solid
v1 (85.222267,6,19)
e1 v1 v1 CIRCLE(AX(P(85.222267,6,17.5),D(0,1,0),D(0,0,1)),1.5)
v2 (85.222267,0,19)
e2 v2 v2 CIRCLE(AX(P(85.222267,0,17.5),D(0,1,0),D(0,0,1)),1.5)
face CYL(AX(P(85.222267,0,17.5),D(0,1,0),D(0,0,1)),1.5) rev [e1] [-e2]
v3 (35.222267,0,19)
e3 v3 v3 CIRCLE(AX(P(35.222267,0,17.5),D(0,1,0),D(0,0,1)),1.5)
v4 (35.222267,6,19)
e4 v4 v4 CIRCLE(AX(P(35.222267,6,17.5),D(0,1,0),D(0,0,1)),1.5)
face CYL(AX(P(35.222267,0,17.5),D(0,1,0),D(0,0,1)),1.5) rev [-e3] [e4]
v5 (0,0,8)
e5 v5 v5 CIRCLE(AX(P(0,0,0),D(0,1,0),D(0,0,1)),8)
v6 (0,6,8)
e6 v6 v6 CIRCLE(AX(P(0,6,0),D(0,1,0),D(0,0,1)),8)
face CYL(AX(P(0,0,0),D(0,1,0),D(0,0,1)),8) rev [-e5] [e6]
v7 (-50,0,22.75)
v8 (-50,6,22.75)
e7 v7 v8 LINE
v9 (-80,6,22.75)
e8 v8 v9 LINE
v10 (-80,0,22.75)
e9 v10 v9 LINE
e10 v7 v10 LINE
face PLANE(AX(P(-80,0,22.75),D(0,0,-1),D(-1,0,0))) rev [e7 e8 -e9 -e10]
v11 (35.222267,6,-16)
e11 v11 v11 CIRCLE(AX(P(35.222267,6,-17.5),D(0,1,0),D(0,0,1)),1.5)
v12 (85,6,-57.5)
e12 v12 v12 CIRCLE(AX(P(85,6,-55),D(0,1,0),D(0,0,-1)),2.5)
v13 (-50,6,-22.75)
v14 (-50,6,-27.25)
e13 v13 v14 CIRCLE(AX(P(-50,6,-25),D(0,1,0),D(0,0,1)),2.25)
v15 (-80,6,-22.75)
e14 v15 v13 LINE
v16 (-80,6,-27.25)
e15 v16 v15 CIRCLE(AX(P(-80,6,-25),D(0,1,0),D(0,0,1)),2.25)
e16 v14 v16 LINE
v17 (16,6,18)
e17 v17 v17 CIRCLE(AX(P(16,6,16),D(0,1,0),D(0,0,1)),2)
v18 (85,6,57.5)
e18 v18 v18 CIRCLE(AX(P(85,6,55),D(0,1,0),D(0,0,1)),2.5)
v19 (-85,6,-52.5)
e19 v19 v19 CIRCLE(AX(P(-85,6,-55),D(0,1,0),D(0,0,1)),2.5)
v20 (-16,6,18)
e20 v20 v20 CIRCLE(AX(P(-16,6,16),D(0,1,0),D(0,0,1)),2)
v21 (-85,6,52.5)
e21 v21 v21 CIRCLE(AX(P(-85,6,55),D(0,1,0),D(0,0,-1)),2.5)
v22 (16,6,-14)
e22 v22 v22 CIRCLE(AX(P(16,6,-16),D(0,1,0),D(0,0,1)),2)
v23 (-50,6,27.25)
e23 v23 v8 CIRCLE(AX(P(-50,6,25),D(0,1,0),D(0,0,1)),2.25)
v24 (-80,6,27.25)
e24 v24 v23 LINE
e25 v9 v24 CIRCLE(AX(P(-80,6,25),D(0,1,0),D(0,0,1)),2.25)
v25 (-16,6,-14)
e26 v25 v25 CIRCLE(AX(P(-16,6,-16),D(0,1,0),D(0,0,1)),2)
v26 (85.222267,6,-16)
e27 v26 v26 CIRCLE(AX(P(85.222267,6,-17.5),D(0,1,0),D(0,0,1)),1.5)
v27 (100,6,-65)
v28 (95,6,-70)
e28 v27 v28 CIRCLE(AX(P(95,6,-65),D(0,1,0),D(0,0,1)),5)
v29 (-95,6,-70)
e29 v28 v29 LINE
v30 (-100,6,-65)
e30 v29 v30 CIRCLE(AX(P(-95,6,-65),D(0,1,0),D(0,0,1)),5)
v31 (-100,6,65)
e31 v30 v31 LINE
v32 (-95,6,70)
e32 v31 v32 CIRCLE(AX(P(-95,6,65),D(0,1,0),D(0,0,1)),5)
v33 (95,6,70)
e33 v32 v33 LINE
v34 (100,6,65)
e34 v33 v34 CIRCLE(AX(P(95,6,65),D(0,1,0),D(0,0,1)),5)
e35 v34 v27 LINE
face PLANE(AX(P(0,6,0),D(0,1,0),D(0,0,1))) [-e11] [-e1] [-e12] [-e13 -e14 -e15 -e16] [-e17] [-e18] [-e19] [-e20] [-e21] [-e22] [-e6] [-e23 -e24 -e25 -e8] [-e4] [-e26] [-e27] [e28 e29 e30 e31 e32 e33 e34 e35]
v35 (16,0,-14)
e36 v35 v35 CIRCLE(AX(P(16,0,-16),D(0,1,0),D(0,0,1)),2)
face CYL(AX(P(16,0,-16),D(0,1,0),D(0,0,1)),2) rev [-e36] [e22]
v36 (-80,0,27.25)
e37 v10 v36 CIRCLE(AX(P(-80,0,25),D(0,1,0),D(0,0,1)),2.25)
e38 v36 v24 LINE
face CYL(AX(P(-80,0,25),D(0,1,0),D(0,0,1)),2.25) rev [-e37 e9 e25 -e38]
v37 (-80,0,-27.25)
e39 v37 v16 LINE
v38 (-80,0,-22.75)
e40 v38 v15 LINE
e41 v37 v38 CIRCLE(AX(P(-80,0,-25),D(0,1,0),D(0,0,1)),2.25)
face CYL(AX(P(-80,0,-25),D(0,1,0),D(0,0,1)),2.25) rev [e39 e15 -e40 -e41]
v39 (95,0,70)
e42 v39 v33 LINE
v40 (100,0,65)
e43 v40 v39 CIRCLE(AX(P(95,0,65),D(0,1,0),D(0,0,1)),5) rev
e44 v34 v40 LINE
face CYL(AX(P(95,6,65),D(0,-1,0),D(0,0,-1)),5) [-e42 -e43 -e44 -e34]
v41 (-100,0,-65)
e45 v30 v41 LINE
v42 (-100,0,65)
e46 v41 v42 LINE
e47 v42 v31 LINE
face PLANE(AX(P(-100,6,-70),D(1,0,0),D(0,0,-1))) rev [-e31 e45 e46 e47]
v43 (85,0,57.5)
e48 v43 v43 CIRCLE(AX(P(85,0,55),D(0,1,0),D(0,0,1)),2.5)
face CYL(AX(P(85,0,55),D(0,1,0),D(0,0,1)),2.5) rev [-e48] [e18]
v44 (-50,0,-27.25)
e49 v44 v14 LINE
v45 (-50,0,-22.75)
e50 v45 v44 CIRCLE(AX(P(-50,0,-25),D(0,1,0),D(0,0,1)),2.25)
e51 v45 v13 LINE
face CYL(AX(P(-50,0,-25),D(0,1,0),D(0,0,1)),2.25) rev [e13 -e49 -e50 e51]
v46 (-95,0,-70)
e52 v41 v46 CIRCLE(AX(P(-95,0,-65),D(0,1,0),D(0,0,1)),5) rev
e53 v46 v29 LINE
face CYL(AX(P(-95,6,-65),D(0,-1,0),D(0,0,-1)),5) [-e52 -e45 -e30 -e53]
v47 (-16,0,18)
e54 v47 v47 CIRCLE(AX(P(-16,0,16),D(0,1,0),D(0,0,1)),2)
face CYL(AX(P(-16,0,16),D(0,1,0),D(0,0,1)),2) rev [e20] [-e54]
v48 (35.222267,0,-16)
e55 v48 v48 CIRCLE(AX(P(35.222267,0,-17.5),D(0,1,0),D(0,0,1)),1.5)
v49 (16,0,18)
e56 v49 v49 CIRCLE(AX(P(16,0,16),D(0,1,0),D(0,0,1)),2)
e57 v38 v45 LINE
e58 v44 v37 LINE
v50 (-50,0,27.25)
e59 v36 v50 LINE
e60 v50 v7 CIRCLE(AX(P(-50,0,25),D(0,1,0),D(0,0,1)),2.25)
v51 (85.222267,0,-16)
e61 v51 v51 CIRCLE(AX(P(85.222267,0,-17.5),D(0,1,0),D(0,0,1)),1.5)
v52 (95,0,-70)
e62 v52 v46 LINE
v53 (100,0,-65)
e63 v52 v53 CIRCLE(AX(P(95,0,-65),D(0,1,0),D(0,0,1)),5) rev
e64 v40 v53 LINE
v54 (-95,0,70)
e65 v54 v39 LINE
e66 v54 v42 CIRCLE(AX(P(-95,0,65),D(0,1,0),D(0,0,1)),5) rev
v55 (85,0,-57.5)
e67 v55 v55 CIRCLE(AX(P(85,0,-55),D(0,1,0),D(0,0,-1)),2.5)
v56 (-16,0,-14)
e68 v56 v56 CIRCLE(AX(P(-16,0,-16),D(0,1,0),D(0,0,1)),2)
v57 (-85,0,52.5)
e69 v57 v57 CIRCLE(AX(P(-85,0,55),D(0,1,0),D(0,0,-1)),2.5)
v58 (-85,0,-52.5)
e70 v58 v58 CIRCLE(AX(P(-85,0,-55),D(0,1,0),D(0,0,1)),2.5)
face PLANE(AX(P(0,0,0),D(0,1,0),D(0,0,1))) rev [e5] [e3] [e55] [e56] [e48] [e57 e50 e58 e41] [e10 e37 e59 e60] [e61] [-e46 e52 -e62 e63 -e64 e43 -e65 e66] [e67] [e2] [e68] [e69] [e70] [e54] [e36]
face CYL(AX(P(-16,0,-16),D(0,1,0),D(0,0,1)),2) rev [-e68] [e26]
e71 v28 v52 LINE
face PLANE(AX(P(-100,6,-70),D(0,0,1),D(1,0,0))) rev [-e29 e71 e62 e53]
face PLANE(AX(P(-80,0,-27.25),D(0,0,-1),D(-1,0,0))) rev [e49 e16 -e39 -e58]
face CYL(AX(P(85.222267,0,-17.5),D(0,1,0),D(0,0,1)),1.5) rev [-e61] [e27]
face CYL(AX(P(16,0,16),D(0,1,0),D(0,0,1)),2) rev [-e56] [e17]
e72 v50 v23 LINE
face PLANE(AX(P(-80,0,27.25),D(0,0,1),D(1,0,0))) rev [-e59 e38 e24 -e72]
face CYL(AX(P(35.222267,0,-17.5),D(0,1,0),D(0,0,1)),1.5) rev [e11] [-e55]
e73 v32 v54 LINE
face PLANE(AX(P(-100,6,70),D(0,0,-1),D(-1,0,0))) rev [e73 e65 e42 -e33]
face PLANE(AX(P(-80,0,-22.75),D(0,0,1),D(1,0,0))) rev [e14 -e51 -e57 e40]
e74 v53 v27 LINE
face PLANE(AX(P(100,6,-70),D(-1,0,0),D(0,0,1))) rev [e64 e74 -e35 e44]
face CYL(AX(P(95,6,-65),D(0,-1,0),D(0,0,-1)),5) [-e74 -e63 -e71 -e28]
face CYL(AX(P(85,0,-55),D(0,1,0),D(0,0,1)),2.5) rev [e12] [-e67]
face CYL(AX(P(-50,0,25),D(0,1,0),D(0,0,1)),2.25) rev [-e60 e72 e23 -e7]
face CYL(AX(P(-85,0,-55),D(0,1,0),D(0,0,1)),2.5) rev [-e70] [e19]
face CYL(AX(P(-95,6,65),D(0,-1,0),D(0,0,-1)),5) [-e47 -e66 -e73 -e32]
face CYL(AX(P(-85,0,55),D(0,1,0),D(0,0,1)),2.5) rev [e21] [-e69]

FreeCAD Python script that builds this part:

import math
import FreeCAD as App
import Part
import Sketcher
Q = App.Units.Quantity


def edges_at(feature, points):
    """Names of the edges that pass closest to the given points."""
    edges = feature.Shape.Edges
    near = lambda p: min(range(len(edges)), key=lambda i: edges[i].distToShape(Part.Vertex(*p))[0])
    return sorted({f"Edge{near(p) + 1}" for p in points})

doc = App.newDocument("Part")
body = doc.addObject("PartDesign::Body", "Body")

# Sketch on XZ plane
sketch1 = body.newObject("Sketcher::SketchObject", "Sketch")
sketch1.AttachmentSupport = (doc.getObject("XZ_Plane"), [""])
sketch1.MapMode = "FlatFace"
sketch1.addGeometry(Part.LineSegment(App.Vector(-100, -70, 0), App.Vector(-100, 70, 0)), False)
sketch1.addGeometry(Part.LineSegment(App.Vector(-100, 70, 0), App.Vector(100, 70, 0)), False)
sketch1.addGeometry(Part.LineSegment(App.Vector(100, 70, 0), App.Vector(100, -70, 0)), False)
sketch1.addGeometry(Part.LineSegment(App.Vector(100, -70, 0), App.Vector(-100, -70, 0)), False)
sketch1.addConstraint(Sketcher.Constraint("Coincident", 0, 2, 1, 1))
sketch1.addConstraint(Sketcher.Constraint("Coincident", 1, 2, 2, 1))
sketch1.addConstraint(Sketcher.Constraint("Coincident", 2, 2, 3, 1))
sketch1.addConstraint(Sketcher.Constraint("Coincident", 3, 2, 0, 1))
sketch1.addConstraint(Sketcher.Constraint("Vertical", 0))
sketch1.addConstraint(Sketcher.Constraint("Horizontal", 1))
sketch1.addConstraint(Sketcher.Constraint("Vertical", 2))
sketch1.addConstraint(Sketcher.Constraint("Horizontal", 3))
sketch1.addConstraint(Sketcher.Constraint("Symmetric", 0, 2, 2, 2, -1, 1))
sketch1.addConstraint(Sketcher.Constraint("DistanceX", 1, 1, 1, 2, Q("200 mm")))
sketch1.addConstraint(Sketcher.Constraint("DistanceY", 0, 1, 0, 2, Q("140 mm")))
pad1 = body.newObject("PartDesign::Pad", "Pad")
pad1.Profile = sketch1
pad1.Length = 6
pad1.Reversed = True
doc.recompute()

fillet = body.newObject("PartDesign::Fillet", "Fillet")
fillet.Base = (pad1, edges_at(pad1, [
    (100, 3, 70),
    (-100, 3, 70),
    (-100, 3, -70),
    (100, 3, -70),
]))
fillet.Radius = 5

# Sketch on XZ plane
sketch2 = body.newObject("Sketcher::SketchObject", "Sketch001")
sketch2.AttachmentSupport = (doc.getObject("XZ_Plane"), [""])
sketch2.MapMode = "FlatFace"
sketch2.AttachmentOffset = App.Placement(App.Vector(0, 0, -6), App.Rotation())
sketch2.addGeometry(Part.Circle(App.Vector(-85, -55, 0), App.Vector(0, 0, 1), 2.5), False)
sketch2.addGeometry(Part.Circle(App.Vector(-85, 55, 0), App.Vector(0, 0, 1), 2.5), False)
sketch2.addGeometry(Part.Circle(App.Vector(85, 55, 0), App.Vector(0, 0, 1), 2.5), False)
sketch2.addGeometry(Part.Circle(App.Vector(85, -55, 0), App.Vector(0, 0, 1), 2.5), False)
sketch2.addConstraint(Sketcher.Constraint("Equal", 0, 1))
sketch2.addConstraint(Sketcher.Constraint("Equal", 1, 2))
sketch2.addConstraint(Sketcher.Constraint("Equal", 2, 3))
sketch2.addConstraint(Sketcher.Constraint("Symmetric", 0, 3, 2, 3, -1, 1))
sketch2.addConstraint(Sketcher.Constraint("Symmetric", 1, 3, 3, 3, -1, 1))
sketch2.addConstraint(Sketcher.Constraint("Symmetric", 1, 3, 2, 3, -2))
sketch2.addConstraint(Sketcher.Constraint("Diameter", 0, Q("5 mm")))
sketch2.addConstraint(Sketcher.Constraint("DistanceX", 0, 3, -1, 1, Q("85 mm")))
sketch2.addConstraint(Sketcher.Constraint("DistanceY", 0, 3, -1, 1, Q("55 mm")))
pocket1 = body.newObject("PartDesign::Pocket", "Pocket")
pocket1.Profile = sketch2
pocket1.Type = "ThroughAll"
pocket1.Reversed = True

# Sketch on XZ plane
sketch3 = body.newObject("Sketcher::SketchObject", "Sketch002")
sketch3.AttachmentSupport = (doc.getObject("XZ_Plane"), [""])
sketch3.MapMode = "FlatFace"
sketch3.AttachmentOffset = App.Placement(App.Vector(0, 0, -6), App.Rotation())
sketch3.addGeometry(Part.Circle(App.Vector(0, 0, 0), App.Vector(0, 0, 1), 8), False)
sketch3.addConstraint(Sketcher.Constraint("Coincident", 0, 3, -1, 1))
sketch3.addConstraint(Sketcher.Constraint("Diameter", 0, Q("16 mm")))
pocket2 = body.newObject("PartDesign::Pocket", "Pocket001")
pocket2.Profile = sketch3
pocket2.Type = "ThroughAll"
pocket2.Reversed = True

# Sketch on XZ plane
sketch4 = body.newObject("Sketcher::SketchObject", "Sketch003")
sketch4.AttachmentSupport = (doc.getObject("XZ_Plane"), [""])
sketch4.MapMode = "FlatFace"
sketch4.AttachmentOffset = App.Placement(App.Vector(0, 0, -6), App.Rotation())
sketch4.addGeometry(Part.Circle(App.Vector(16, -16, 0), App.Vector(0, 0, 1), 2), False)
sketch4.addGeometry(Part.Circle(App.Vector(16, 16, 0), App.Vector(0, 0, 1), 2), False)
sketch4.addGeometry(Part.Circle(App.Vector(-16, 16, 0), App.Vector(0, 0, 1), 2), False)
sketch4.addGeometry(Part.Circle(App.Vector(-16, -16, 0), App.Vector(0, 0, 1), 2), False)
sketch4.addConstraint(Sketcher.Constraint("Equal", 0, 1))
sketch4.addConstraint(Sketcher.Constraint("Equal", 1, 2))
sketch4.addConstraint(Sketcher.Constraint("Equal", 2, 3))
sketch4.addConstraint(Sketcher.Constraint("Symmetric", 0, 3, 2, 3, -1, 1))
sketch4.addConstraint(Sketcher.Constraint("Symmetric", 1, 3, 3, 3, -1, 1))
sketch4.addConstraint(Sketcher.Constraint("Symmetric", 1, 3, 2, 3, -2))
sketch4.addConstraint(Sketcher.Constraint("Diameter", 0, Q("4 mm")))
sketch4.addConstraint(Sketcher.Constraint("DistanceX", -1, 1, 0, 3, Q("16 mm")))
sketch4.addConstraint(Sketcher.Constraint("DistanceY", 0, 3, -1, 1, Q("16 mm")))
pocket3 = body.newObject("PartDesign::Pocket", "Pocket002")
pocket3.Profile = sketch4
pocket3.Type = "ThroughAll"
pocket3.Reversed = True

# Sketch on XZ plane
sketch5 = body.newObject("Sketcher::SketchObject", "Sketch004")
sketch5.AttachmentSupport = (doc.getObject("XZ_Plane"), [""])
sketch5.MapMode = "FlatFace"
sketch5.AttachmentOffset = App.Placement(App.Vector(0, 0, -6), App.Rotation())
sketch5.addGeometry(Part.LineSegment(App.Vector(-50, -27.2, 0), App.Vector(-80, -27.2, 0)), False)
sketch5.addGeometry(Part.ArcOfCircle(Part.Circle(App.Vector(-80, -25, 0), App.Vector(0, 0, 1), 2.2), math.radians(90), math.radians(270)), False)
sketch5.addGeometry(Part.LineSegment(App.Vector(-80, -22.8, 0), App.Vector(-50, -22.8, 0)), False)
sketch5.addGeometry(Part.ArcOfCircle(Part.Circle(App.Vector(-50, -25, 0), App.Vector(0, 0, 1), 2.2), math.radians(-90), math.radians(90)), False)
sketch5.addGeometry(Part.LineSegment(App.Vector(-50, 22.8, 0), App.Vector(-80, 22.8, 0)), False)
sketch5.addGeometry(Part.ArcOfCircle(Part.Circle(App.Vector(-80, 25, 0), App.Vector(0, 0, 1), 2.2), math.radians(90), math.radians(270)), False)
sketch5.addGeometry(Part.LineSegment(App.Vector(-80, 27.2, 0), App.Vector(-50, 27.2, 0)), False)
sketch5.addGeometry(Part.ArcOfCircle(Part.Circle(App.Vector(-50, 25, 0), App.Vector(0, 0, 1), 2.2), math.radians(-90), math.radians(90)), False)
sketch5.addConstraint(Sketcher.Constraint("Tangent", 0, 2, 1, 2))
sketch5.addConstraint(Sketcher.Constraint("Tangent", 1, 1, 2, 1))
sketch5.addConstraint(Sketcher.Constraint("Tangent", 2, 2, 3, 2))
sketch5.addConstraint(Sketcher.Constraint("Tangent", 3, 1, 0, 1))
sketch5.addConstraint(Sketcher.Constraint("Tangent", 4, 2, 5, 2))
sketch5.addConstraint(Sketcher.Constraint("Tangent", 5, 1, 6, 1))
sketch5.addConstraint(Sketcher.Constraint("Tangent", 6, 2, 7, 2))
sketch5.addConstraint(Sketcher.Constraint("Tangent", 7, 1, 4, 1))
sketch5.addConstraint(Sketcher.Constraint("Horizontal", 0))
sketch5.addConstraint(Sketcher.Constraint("Horizontal", 2))
sketch5.addConstraint(Sketcher.Constraint("Horizontal", 4))
sketch5.addConstraint(Sketcher.Constraint("Horizontal", 6))
sketch5.addConstraint(Sketcher.Constraint("Equal", 3, 5))
sketch5.addConstraint(Sketcher.Constraint("Symmetric", 1, 3, 5, 3, -1))
sketch5.addConstraint(Sketcher.Constraint("Vertical", 3, 3, 7, 3))
sketch5.addConstraint(Sketcher.Constraint("DistanceX", 0, 2, 0, 1, Q("30 mm")))
sketch5.addConstraint(Sketcher.Constraint("Radius", 1, Q("2.25 mm")))
sketch5.addConstraint(Sketcher.Constraint("DistanceX", 1, 3, -1, 1, Q("80 mm")))
sketch5.addConstraint(Sketcher.Constraint("DistanceY", 1, 3, -1, 1, Q("25 mm")))
pocket4 = body.newObject("PartDesign::Pocket", "Pocket003")
pocket4.Profile = sketch5
pocket4.Type = "ThroughAll"
pocket4.Reversed = True

# Sketch on XZ plane
sketch6 = body.newObject("Sketcher::SketchObject", "Sketch005")
sketch6.AttachmentSupport = (doc.getObject("XZ_Plane"), [""])
sketch6.MapMode = "FlatFace"
sketch6.AttachmentOffset = App.Placement(App.Vector(0, 0, -6), App.Rotation())
sketch6.addGeometry(Part.Circle(App.Vector(35.2, 17.5, 0), App.Vector(0, 0, 1), 1.5), False)
sketch6.addGeometry(Part.Circle(App.Vector(35.2, -17.5, 0), App.Vector(0, 0, 1), 1.5), False)
sketch6.addGeometry(Part.Circle(App.Vector(85.2, -17.5, 0), App.Vector(0, 0, 1), 1.5), False)
sketch6.addGeometry(Part.Circle(App.Vector(85.2, 17.5, 0), App.Vector(0, 0, 1), 1.5), False)
sketch6.addConstraint(Sketcher.Constraint("Equal", 0, 1))
sketch6.addConstraint(Sketcher.Constraint("Equal", 1, 2))
sketch6.addConstraint(Sketcher.Constraint("Equal", 2, 3))
sketch6.addConstraint(Sketcher.Constraint("Symmetric", 0, 3, 1, 3, -1))
sketch6.addConstraint(Sketcher.Constraint("Symmetric", 2, 3, 3, 3, -1))
sketch6.addConstraint(Sketcher.Constraint("Horizontal", 1, 3, 2, 3))
sketch6.addConstraint(Sketcher.Constraint("Diameter", 0, Q("3 mm")))
sketch6.addConstraint(Sketcher.Constraint("DistanceY", 1, 3, 0, 3, Q("35 mm")))
sketch6.addConstraint(Sketcher.Constraint("DistanceX", 1, 3, 2, 3, Q("50 mm")))
sketch6.addConstraint(Sketcher.Constraint("DistanceX", -1, 1, 0, 3, Q("35.222267 mm")))
pocket5 = body.newObject("PartDesign::Pocket", "Pocket004")
pocket5.Profile = sketch6
pocket5.Type = "ThroughAll"
pocket5.Reversed = True

doc.recompute()
